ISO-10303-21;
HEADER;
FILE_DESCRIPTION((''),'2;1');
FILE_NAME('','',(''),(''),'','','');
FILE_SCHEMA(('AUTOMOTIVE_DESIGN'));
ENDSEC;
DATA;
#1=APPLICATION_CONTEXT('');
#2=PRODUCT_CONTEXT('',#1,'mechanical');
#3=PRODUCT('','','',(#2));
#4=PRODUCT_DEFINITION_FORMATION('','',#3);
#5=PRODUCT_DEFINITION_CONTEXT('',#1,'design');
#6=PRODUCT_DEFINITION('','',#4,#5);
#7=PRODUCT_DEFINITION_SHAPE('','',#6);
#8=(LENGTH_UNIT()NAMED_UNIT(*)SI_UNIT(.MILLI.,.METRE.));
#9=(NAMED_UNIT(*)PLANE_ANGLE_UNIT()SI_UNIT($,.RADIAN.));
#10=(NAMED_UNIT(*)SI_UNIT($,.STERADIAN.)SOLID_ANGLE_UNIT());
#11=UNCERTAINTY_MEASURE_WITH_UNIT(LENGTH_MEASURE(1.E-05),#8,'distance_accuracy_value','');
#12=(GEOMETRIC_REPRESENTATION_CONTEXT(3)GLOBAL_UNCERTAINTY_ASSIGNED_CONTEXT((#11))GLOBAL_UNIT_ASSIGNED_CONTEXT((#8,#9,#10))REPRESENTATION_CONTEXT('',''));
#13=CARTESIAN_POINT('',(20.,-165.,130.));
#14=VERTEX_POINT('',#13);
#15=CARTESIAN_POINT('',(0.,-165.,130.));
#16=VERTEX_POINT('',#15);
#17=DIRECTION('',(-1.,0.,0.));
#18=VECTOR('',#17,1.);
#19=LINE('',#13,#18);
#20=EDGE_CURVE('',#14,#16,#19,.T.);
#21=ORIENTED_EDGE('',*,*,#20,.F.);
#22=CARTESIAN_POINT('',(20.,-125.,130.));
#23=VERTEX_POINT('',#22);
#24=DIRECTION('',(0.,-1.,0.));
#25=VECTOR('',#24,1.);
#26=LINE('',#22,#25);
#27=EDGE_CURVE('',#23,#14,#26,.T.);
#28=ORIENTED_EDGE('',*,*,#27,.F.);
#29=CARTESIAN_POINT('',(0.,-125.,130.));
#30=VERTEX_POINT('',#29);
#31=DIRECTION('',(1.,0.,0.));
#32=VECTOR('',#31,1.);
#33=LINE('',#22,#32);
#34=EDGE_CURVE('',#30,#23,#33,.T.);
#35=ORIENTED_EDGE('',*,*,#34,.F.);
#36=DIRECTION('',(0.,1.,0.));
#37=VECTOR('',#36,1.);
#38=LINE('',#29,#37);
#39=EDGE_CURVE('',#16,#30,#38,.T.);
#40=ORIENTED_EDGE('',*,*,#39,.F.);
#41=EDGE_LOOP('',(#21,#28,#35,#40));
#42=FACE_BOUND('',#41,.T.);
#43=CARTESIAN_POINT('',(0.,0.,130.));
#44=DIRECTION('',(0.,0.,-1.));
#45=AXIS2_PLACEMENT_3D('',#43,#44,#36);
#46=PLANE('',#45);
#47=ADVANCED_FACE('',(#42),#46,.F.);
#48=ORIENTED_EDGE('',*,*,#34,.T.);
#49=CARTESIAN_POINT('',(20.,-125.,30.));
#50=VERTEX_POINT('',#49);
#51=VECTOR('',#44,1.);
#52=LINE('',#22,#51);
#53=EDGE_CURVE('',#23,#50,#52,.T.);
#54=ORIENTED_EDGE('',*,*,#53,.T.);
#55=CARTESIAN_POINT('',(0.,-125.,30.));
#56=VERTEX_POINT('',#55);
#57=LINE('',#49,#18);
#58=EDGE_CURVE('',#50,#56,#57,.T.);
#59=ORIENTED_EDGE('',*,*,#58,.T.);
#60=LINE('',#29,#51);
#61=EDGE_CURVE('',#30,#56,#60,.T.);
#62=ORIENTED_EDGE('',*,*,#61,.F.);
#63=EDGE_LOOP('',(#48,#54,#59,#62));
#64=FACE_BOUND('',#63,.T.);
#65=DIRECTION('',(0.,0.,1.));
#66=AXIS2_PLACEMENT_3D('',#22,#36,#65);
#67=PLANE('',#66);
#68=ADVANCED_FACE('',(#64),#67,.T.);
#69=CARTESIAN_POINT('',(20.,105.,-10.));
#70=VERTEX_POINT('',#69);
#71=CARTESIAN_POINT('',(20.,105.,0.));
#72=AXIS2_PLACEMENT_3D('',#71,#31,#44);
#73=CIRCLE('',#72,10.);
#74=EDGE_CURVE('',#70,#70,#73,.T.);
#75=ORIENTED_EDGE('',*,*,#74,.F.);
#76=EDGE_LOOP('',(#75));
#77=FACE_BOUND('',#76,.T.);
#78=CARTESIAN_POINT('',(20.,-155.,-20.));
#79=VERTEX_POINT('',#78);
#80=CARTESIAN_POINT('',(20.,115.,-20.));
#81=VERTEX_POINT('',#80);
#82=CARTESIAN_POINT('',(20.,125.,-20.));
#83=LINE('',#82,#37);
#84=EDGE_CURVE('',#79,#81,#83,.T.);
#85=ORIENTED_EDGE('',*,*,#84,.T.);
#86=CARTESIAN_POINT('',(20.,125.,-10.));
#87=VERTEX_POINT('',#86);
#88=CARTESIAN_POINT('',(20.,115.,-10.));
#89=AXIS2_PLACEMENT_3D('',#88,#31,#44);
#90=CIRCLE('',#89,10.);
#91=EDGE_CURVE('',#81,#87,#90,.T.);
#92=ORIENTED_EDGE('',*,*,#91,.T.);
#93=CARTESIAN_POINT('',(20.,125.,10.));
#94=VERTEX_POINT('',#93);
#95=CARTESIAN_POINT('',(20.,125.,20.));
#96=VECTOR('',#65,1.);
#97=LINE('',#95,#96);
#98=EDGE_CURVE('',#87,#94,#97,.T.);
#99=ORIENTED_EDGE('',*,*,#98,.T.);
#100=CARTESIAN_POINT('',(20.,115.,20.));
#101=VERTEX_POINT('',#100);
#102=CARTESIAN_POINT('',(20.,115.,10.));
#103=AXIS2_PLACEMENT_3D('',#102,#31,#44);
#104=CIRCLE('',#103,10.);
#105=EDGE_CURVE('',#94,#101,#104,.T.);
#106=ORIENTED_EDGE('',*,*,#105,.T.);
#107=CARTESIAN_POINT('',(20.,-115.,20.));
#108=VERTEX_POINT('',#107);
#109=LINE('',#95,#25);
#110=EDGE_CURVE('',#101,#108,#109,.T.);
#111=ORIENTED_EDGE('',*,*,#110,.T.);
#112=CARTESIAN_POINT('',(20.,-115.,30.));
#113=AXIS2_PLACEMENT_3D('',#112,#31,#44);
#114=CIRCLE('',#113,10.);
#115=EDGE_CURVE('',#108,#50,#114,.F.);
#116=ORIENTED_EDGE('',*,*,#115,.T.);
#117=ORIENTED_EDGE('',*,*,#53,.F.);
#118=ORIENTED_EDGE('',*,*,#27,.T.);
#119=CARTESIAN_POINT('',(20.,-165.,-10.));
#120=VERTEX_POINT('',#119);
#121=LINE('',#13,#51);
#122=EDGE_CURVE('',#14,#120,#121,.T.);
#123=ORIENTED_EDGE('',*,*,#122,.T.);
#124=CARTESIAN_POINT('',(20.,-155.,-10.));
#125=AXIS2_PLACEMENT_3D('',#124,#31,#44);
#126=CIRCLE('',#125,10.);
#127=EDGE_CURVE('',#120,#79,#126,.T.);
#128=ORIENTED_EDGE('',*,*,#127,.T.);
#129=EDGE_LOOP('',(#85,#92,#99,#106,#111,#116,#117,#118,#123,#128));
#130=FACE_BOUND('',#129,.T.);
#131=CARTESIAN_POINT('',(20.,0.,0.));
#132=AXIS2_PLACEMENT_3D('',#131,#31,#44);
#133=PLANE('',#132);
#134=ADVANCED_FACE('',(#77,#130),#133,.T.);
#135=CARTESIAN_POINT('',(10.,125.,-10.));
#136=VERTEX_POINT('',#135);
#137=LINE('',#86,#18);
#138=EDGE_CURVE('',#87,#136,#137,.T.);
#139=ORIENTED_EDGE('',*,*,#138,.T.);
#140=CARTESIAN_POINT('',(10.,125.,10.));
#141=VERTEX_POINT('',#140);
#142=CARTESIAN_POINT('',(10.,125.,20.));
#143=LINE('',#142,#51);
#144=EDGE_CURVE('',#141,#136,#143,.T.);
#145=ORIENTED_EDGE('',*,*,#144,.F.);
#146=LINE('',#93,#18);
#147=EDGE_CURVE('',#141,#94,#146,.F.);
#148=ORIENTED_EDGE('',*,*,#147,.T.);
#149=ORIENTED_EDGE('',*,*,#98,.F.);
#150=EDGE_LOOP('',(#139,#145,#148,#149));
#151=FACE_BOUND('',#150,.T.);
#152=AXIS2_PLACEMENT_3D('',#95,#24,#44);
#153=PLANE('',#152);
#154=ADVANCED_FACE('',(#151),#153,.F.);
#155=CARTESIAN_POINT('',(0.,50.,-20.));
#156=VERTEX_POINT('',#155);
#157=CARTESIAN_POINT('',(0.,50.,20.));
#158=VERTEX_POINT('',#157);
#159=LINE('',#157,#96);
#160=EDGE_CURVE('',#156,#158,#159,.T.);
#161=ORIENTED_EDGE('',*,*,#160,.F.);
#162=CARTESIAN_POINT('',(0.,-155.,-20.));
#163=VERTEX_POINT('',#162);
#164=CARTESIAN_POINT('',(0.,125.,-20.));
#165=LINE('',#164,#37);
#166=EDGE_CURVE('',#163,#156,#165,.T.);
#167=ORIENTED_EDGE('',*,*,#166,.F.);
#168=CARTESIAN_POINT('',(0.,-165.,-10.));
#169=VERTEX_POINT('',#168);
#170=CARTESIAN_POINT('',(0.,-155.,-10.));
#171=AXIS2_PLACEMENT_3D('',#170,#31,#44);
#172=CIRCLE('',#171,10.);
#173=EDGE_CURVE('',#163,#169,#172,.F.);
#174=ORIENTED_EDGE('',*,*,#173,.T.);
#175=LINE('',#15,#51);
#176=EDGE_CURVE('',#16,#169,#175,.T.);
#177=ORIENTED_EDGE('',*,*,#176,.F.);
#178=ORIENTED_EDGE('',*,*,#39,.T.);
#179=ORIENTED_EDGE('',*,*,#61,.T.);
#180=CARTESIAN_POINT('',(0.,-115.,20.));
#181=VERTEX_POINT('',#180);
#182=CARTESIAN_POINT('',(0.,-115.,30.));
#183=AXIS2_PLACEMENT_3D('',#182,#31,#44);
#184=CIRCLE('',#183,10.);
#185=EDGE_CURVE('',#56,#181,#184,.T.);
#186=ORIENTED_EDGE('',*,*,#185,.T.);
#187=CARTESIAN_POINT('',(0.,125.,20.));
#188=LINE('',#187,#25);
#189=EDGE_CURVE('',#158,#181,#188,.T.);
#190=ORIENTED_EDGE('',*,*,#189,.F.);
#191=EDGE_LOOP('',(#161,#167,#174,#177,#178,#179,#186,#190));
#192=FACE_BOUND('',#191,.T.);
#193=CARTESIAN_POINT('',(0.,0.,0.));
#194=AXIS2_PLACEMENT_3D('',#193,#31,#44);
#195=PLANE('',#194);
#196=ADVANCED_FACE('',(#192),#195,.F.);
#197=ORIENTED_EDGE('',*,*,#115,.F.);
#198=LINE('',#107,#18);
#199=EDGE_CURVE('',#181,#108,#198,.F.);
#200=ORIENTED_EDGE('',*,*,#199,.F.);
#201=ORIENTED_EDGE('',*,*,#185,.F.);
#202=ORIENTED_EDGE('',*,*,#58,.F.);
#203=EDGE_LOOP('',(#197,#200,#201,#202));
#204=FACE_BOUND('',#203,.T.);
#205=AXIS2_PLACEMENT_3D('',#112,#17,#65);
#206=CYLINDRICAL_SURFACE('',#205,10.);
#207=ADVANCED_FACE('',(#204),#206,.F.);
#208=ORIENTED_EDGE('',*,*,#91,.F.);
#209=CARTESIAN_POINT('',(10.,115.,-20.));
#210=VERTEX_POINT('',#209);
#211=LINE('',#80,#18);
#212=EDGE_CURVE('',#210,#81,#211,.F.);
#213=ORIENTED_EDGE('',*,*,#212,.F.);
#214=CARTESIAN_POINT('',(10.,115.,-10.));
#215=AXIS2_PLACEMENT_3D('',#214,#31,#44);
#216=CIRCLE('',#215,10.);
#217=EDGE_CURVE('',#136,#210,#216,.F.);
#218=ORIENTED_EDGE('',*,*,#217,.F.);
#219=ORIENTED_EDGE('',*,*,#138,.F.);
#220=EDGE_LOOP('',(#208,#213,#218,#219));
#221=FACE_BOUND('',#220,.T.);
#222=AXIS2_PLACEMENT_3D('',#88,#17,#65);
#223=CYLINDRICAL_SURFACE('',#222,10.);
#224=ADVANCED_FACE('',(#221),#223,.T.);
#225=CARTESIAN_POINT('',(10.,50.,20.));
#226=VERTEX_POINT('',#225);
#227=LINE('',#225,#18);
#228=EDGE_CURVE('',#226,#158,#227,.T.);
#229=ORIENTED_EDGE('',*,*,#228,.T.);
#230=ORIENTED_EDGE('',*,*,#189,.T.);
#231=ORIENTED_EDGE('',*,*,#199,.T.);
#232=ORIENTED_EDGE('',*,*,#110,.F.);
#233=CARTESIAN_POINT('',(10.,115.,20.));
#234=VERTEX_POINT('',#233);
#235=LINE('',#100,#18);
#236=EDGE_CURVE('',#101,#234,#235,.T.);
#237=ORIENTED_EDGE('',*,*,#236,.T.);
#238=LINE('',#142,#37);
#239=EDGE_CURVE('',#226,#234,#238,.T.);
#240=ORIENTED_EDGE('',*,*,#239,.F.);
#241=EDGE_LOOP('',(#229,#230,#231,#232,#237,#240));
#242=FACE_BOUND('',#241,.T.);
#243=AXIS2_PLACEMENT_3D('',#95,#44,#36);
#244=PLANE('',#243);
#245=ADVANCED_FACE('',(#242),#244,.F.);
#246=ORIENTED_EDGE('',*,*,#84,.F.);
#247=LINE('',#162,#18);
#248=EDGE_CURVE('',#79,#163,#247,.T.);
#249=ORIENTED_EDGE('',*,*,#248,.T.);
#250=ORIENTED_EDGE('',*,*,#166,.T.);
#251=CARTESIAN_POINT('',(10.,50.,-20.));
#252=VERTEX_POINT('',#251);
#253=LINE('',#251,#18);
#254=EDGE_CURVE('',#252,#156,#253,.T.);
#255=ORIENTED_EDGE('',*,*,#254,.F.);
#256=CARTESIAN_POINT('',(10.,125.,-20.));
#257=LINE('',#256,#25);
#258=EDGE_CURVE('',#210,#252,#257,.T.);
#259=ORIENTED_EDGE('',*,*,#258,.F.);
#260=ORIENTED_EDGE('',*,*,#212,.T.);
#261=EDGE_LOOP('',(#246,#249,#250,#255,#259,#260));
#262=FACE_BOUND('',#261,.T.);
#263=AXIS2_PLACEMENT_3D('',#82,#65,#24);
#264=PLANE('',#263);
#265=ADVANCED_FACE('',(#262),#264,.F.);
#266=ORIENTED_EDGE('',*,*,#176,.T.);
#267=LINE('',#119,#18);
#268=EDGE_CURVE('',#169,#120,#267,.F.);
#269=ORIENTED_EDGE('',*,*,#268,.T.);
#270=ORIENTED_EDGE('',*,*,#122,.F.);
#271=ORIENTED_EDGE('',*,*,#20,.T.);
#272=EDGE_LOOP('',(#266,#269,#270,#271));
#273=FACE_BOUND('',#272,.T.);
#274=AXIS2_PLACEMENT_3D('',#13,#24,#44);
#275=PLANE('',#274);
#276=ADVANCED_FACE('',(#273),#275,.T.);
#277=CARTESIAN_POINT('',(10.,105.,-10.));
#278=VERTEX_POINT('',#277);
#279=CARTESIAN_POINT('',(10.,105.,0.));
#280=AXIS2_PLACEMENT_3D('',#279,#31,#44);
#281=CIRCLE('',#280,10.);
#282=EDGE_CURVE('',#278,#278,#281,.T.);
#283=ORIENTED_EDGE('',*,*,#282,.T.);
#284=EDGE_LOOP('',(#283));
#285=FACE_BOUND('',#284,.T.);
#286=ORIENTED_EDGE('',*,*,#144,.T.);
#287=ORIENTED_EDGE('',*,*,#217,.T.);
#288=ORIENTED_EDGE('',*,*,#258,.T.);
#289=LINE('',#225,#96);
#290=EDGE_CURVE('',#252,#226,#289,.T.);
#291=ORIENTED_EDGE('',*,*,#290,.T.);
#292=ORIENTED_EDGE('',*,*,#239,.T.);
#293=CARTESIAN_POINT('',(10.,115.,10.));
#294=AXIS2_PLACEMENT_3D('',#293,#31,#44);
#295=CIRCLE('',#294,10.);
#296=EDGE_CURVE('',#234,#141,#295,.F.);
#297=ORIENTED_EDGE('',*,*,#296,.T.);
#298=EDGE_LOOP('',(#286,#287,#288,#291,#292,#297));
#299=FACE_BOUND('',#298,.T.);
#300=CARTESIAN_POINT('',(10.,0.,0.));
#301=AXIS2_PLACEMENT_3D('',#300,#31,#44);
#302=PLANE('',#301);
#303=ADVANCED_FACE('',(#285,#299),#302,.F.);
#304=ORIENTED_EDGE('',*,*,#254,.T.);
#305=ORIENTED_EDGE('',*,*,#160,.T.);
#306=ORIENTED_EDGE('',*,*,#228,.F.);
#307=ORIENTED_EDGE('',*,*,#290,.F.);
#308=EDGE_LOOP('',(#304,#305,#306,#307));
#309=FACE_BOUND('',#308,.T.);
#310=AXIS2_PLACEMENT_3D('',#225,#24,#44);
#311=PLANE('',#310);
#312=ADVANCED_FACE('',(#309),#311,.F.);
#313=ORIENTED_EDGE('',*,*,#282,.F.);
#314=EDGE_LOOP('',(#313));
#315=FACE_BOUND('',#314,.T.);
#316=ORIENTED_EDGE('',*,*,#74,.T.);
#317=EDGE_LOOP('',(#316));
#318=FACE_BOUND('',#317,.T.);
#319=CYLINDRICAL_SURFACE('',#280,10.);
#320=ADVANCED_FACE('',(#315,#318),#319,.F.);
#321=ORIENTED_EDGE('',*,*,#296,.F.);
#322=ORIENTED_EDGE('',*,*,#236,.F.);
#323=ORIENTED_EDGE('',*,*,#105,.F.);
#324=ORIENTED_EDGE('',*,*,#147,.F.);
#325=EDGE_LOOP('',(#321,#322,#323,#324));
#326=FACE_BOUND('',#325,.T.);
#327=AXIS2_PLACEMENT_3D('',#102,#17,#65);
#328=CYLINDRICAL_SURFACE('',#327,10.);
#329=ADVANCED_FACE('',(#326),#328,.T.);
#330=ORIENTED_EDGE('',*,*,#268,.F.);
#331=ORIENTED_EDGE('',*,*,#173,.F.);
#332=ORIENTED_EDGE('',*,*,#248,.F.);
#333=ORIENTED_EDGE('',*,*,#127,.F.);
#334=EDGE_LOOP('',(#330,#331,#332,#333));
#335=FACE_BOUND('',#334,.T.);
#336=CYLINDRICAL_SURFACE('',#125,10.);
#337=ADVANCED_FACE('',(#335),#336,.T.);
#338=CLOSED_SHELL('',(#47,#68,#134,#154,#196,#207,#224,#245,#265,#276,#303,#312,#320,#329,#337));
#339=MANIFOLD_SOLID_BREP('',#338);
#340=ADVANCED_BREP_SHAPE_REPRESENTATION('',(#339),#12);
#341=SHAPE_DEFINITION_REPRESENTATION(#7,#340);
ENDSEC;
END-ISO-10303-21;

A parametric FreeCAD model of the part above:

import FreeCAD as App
import Part
import Sketcher
from FreeCAD import Vector
Q = App.Units.Quantity


def edges_at(feature, points):
    """Names of the edges that pass closest to the given points."""
    edges = feature.Shape.Edges
    near = lambda p: min(range(len(edges)), key=lambda i: edges[i].distToShape(Part.Vertex(*p))[0])
    return sorted({f"Edge{near(p) + 1}" for p in points})

doc = App.newDocument("Part")
params = doc.addObject("Spreadsheet::Sheet", "Params")
for row, (alias, value) in enumerate([
    ("sketch1_width", "250 mm"),
    ("sketch1_height", "40 mm"),
    ("pad1_length", "20 mm"),
    ("sketch2_width", "75 mm"),
    ("sketch2_height", "40 mm"),
    ("pocket1_length", "10 mm"),
    ("fillet_radius", "10 mm"),
    ("sketch3_diameter", "20 mm"),
    ("pocket2_length", "10 mm"),
    ("sketch4_width", "20 mm"),
    ("sketch4_height", "40 mm"),
    ("pad2_length", "150 mm"),
    ("fillet2_radius", "10 mm"),
    ("fillet3_radius", "10 mm"),
], start=1):
    params.set(f"A{row}", alias)
    params.set(f"B{row}", "=" + value)
    params.setAlias(f"B{row}", alias)

body = doc.addObject("PartDesign::Body", "Body")

sketch1 = body.newObject("Sketcher::SketchObject", "Sketch")
sketch1.AttachmentSupport = (doc.getObject("YZ_Plane"), [""])
sketch1.MapMode = "FlatFace"
sketch1.addGeometry(Part.LineSegment(Vector(125, 20, 0), Vector(-125, 20, 0)), False)
sketch1.addGeometry(Part.LineSegment(Vector(-125, 20, 0), Vector(-125, -20, 0)), False)
sketch1.addGeometry(Part.LineSegment(Vector(-125, -20, 0), Vector(125, -20, 0)), False)
sketch1.addGeometry(Part.LineSegment(Vector(125, -20, 0), Vector(125, 20, 0)), False)
sketch1.addConstraint(Sketcher.Constraint("Coincident", 0, 2, 1, 1))
sketch1.addConstraint(Sketcher.Constraint("Coincident", 1, 2, 2, 1))
sketch1.addConstraint(Sketcher.Constraint("Coincident", 2, 2, 3, 1))
sketch1.addConstraint(Sketcher.Constraint("Coincident", 3, 2, 0, 1))
sketch1.addConstraint(Sketcher.Constraint("Horizontal", 0))
sketch1.addConstraint(Sketcher.Constraint("Vertical", 1))
sketch1.addConstraint(Sketcher.Constraint("Horizontal", 2))
sketch1.addConstraint(Sketcher.Constraint("Vertical", 3))
sketch1.addConstraint(Sketcher.Constraint("Symmetric", 0, 2, 2, 2, -1, 1))
sketch1.addConstraint(Sketcher.Constraint("DistanceX", 0, 2, 0, 1, Q("250 mm")))
sketch1.addConstraint(Sketcher.Constraint("DistanceY", 1, 2, 1, 1, Q("40 mm")))
sketch1.setExpression("Constraints[9]", "Params.sketch1_width")
sketch1.setExpression("Constraints[10]", "Params.sketch1_height")
pad1 = body.newObject("PartDesign::Pad", "Pad")
pad1.Profile = sketch1
pad1.setExpression("Length", "Params.pad1_length")

sketch2 = body.newObject("Sketcher::SketchObject", "Sketch001")
sketch2.AttachmentSupport = (doc.getObject("YZ_Plane"), [""])
sketch2.MapMode = "FlatFace"
sketch2.addGeometry(Part.LineSegment(Vector(125, -20, 0), Vector(50, -20, 0)), False)
sketch2.addGeometry(Part.LineSegment(Vector(50, -20, 0), Vector(50, 20, 0)), False)
sketch2.addGeometry(Part.LineSegment(Vector(50, 20, 0), Vector(125, 20, 0)), False)
sketch2.addGeometry(Part.LineSegment(Vector(125, 20, 0), Vector(125, -20, 0)), False)
sketch2.addConstraint(Sketcher.Constraint("Coincident", 0, 2, 1, 1))
sketch2.addConstraint(Sketcher.Constraint("Coincident", 1, 2, 2, 1))
sketch2.addConstraint(Sketcher.Constraint("Coincident", 2, 2, 3, 1))
sketch2.addConstraint(Sketcher.Constraint("Coincident", 3, 2, 0, 1))
sketch2.addConstraint(Sketcher.Constraint("Horizontal", 0))
sketch2.addConstraint(Sketcher.Constraint("Vertical", 1))
sketch2.addConstraint(Sketcher.Constraint("Horizontal", 2))
sketch2.addConstraint(Sketcher.Constraint("Vertical", 3))
sketch2.addConstraint(Sketcher.Constraint("DistanceX", 0, 2, 0, 1, Q("75 mm")))
sketch2.addConstraint(Sketcher.Constraint("DistanceY", 1, 1, 1, 2, Q("40 mm")))
sketch2.addConstraint(Sketcher.Constraint("DistanceX", -1, 1, 0, 2, Q("50 mm")))
sketch2.addConstraint(Sketcher.Constraint("DistanceY", 0, 2, -1, 1, Q("20 mm")))
sketch2.setExpression("Constraints[8]", "Params.sketch2_width")
sketch2.setExpression("Constraints[9]", "Params.sketch2_height")
pocket1 = body.newObject("PartDesign::Pocket", "Pocket")
pocket1.Profile = sketch2
pocket1.setExpression("Length", "Params.pocket1_length")
pocket1.Reversed = True
doc.recompute()

fillet = body.newObject("PartDesign::Fillet", "Fillet")
fillet.Base = (pocket1, edges_at(pocket1, [(15, 125, 20), (15, 125, -20)]))
fillet.setExpression("Radius", "Params.fillet_radius")

sketch3 = body.newObject("Sketcher::SketchObject", "Sketch002")
sketch3.AttachmentSupport = (doc.getObject("YZ_Plane"), [""])
sketch3.MapMode = "FlatFace"
sketch3.AttachmentOffset = App.Placement(Vector(0, 0, 20), App.Rotation())
sketch3.addGeometry(Part.Circle(Vector(105, 0, 0), Vector(0, 0, 1), 10), False)
sketch3.addConstraint(Sketcher.Constraint("PointOnObject", 0, 3, -1))
sketch3.addConstraint(Sketcher.Constraint("Diameter", 0, Q("20 mm")))
sketch3.addConstraint(Sketcher.Constraint("DistanceX", -1, 1, 0, 3, Q("105 mm")))
sketch3.setExpression("Constraints[1]", "Params.sketch3_diameter")
pocket2 = body.newObject("PartDesign::Pocket", "Pocket001")
pocket2.Profile = sketch3
pocket2.setExpression("Length", "Params.pocket2_length")

sketch4 = body.newObject("Sketcher::SketchObject", "Sketch003")
sketch4.AttachmentSupport = (doc.getObject("XY_Plane"), [""])
sketch4.MapMode = "FlatFace"
sketch4.AttachmentOffset = App.Placement(Vector(0, 0, -20), App.Rotation())
sketch4.addGeometry(Part.LineSegment(Vector(20, -125, 0), Vector(20, -165, 0)), False)
sketch4.addGeometry(Part.LineSegment(Vector(20, -165, 0), Vector(0, -165, 0)), False)
sketch4.addGeometry(Part.LineSegment(Vector(0, -165, 0), Vector(0, -125, 0)), False)
sketch4.addGeometry(Part.LineSegment(Vector(0, -125, 0), Vector(20, -125, 0)), False)
sketch4.addConstraint(Sketcher.Constraint("Coincident", 0, 2, 1, 1))
sketch4.addConstraint(Sketcher.Constraint("Coincident", 1, 2, 2, 1))
sketch4.addConstraint(Sketcher.Constraint("Coincident", 2, 2, 3, 1))
sketch4.addConstraint(Sketcher.Constraint("Coincident", 3, 2, 0, 1))
sketch4.addConstraint(Sketcher.Constraint("Vertical", 0))
sketch4.addConstraint(Sketcher.Constraint("Horizontal", 1))
sketch4.addConstraint(Sketcher.Constraint("Vertical", 2))
sketch4.addConstraint(Sketcher.Constraint("Horizontal", 3))
sketch4.addConstraint(Sketcher.Constraint("PointOnObject", 1, 2, -2))
sketch4.addConstraint(Sketcher.Constraint("DistanceX", 1, 2, 1, 1, Q("20 mm")))
sketch4.addConstraint(Sketcher.Constraint("DistanceY", 0, 2, 0, 1, Q("40 mm")))
sketch4.addConstraint(Sketcher.Constraint("DistanceY", 0, 2, -1, 1, Q("165 mm")))
sketch4.setExpression("Constraints[9]", "Params.sketch4_width")
sketch4.setExpression("Constraints[10]", "Params.sketch4_height")
pad2 = body.newObject("PartDesign::Pad", "Pad001")
pad2.Profile = sketch4
pad2.setExpression("Length", "Params.pad2_length")
doc.recompute()

fillet2 = body.newObject("PartDesign::Fillet", "Fillet001")
fillet2.Base = (pad2, edges_at(pad2, [(10, -165, -20)]))
fillet2.setExpression("Radius", "Params.fillet2_radius")
doc.recompute()

fillet3 = body.newObject("PartDesign::Fillet", "Fillet002")
fillet3.Base = (fillet2, edges_at(fillet2, [(10, -125, 20)]))
fillet3.setExpression("Radius", "Params.fillet3_radius")

doc.recompute()
